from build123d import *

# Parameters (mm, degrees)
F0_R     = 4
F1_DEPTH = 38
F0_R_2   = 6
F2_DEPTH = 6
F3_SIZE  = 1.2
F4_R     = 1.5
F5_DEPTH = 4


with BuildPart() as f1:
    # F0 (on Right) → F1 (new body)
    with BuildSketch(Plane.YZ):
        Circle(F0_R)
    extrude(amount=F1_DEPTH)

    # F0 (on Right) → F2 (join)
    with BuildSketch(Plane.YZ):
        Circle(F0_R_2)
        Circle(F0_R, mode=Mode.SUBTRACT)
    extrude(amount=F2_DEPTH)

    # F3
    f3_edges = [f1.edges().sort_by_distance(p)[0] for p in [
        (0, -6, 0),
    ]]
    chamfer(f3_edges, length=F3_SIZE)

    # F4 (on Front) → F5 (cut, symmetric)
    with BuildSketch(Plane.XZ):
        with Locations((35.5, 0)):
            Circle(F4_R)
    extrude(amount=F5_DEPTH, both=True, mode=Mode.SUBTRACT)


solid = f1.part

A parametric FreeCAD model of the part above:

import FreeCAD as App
import Part
import Sketcher


def edges_at(feature, points):
    """Names of the edges that pass closest to the given points."""
    edges = feature.Shape.Edges
    near = lambda p: min(range(len(edges)), key=lambda i: edges[i].distToShape(Part.Vertex(*p))[0])
    return sorted({f"Edge{near(p) + 1}" for p in points})

doc = App.newDocument("Part")
body = doc.addObject("PartDesign::Body", "Body")

sketch1 = body.newObject("Sketcher::SketchObject", "Sketch")
sketch1.AttachmentSupport = (doc.getObject("YZ_Plane"), [""])
sketch1.MapMode = "FlatFace"
sketch1.addGeometry(Part.Circle(App.Vector(0, 0, 0), App.Vector(0, 0, 1), 4), False)
sketch1.addConstraint(Sketcher.Constraint("Coincident", 0, 3, -1, 1))
sketch1.addConstraint(Sketcher.Constraint("Diameter", 0, 8.0))
pad1 = body.newObject("PartDesign::Pad", "Pad")
pad1.Profile = sketch1
pad1.Length = 38

sketch2 = body.newObject("Sketcher::SketchObject", "Sketch001")
sketch2.AttachmentSupport = (doc.getObject("YZ_Plane"), [""])
sketch2.MapMode = "FlatFace"
sketch2.addGeometry(Part.Circle(App.Vector(0, 0, 0), App.Vector(0, 0, 1), 6), False)
sketch2.addGeometry(Part.Circle(App.Vector(0, 0, 0), App.Vector(0, 0, 1), 4), False)
sketch2.addConstraint(Sketcher.Constraint("Coincident", 0, 3, -1, 1))
sketch2.addConstraint(Sketcher.Constraint("Coincident", 1, 3, -1, 1))
sketch2.addConstraint(Sketcher.Constraint("Diameter", 0, 12.0))
sketch2.addConstraint(Sketcher.Constraint("Diameter", 1, 8.0))
pad2 = body.newObject("PartDesign::Pad", "Pad001")
pad2.Profile = sketch2
pad2.Length = 6
doc.recompute()

chamfer = body.newObject("PartDesign::Chamfer", "Chamfer")
chamfer.Base = (pad2, edges_at(pad2, [(0, -6, 0)]))
chamfer.Size = 1.2

sketch3 = body.newObject("Sketcher::SketchObject", "Sketch002")
sketch3.AttachmentSupport = (doc.getObject("XZ_Plane"), [""])
sketch3.MapMode = "FlatFace"
sketch3.addGeometry(Part.Circle(App.Vector(35.5, 0, 0), App.Vector(0, 0, 1), 1.5), False)
sketch3.addConstraint(Sketcher.Constraint("PointOnObject", 0, 3, -1))
sketch3.addConstraint(Sketcher.Constraint("Diameter", 0, 3.0))
sketch3.addConstraint(Sketcher.Constraint("DistanceX", -1, 1, 0, 3, 35.5))
pocket1 = body.newObject("PartDesign::Pocket", "Pocket")
pocket1.Profile = sketch3
pocket1.Length = 8
pocket1.Midplane = True

doc.recompute()
